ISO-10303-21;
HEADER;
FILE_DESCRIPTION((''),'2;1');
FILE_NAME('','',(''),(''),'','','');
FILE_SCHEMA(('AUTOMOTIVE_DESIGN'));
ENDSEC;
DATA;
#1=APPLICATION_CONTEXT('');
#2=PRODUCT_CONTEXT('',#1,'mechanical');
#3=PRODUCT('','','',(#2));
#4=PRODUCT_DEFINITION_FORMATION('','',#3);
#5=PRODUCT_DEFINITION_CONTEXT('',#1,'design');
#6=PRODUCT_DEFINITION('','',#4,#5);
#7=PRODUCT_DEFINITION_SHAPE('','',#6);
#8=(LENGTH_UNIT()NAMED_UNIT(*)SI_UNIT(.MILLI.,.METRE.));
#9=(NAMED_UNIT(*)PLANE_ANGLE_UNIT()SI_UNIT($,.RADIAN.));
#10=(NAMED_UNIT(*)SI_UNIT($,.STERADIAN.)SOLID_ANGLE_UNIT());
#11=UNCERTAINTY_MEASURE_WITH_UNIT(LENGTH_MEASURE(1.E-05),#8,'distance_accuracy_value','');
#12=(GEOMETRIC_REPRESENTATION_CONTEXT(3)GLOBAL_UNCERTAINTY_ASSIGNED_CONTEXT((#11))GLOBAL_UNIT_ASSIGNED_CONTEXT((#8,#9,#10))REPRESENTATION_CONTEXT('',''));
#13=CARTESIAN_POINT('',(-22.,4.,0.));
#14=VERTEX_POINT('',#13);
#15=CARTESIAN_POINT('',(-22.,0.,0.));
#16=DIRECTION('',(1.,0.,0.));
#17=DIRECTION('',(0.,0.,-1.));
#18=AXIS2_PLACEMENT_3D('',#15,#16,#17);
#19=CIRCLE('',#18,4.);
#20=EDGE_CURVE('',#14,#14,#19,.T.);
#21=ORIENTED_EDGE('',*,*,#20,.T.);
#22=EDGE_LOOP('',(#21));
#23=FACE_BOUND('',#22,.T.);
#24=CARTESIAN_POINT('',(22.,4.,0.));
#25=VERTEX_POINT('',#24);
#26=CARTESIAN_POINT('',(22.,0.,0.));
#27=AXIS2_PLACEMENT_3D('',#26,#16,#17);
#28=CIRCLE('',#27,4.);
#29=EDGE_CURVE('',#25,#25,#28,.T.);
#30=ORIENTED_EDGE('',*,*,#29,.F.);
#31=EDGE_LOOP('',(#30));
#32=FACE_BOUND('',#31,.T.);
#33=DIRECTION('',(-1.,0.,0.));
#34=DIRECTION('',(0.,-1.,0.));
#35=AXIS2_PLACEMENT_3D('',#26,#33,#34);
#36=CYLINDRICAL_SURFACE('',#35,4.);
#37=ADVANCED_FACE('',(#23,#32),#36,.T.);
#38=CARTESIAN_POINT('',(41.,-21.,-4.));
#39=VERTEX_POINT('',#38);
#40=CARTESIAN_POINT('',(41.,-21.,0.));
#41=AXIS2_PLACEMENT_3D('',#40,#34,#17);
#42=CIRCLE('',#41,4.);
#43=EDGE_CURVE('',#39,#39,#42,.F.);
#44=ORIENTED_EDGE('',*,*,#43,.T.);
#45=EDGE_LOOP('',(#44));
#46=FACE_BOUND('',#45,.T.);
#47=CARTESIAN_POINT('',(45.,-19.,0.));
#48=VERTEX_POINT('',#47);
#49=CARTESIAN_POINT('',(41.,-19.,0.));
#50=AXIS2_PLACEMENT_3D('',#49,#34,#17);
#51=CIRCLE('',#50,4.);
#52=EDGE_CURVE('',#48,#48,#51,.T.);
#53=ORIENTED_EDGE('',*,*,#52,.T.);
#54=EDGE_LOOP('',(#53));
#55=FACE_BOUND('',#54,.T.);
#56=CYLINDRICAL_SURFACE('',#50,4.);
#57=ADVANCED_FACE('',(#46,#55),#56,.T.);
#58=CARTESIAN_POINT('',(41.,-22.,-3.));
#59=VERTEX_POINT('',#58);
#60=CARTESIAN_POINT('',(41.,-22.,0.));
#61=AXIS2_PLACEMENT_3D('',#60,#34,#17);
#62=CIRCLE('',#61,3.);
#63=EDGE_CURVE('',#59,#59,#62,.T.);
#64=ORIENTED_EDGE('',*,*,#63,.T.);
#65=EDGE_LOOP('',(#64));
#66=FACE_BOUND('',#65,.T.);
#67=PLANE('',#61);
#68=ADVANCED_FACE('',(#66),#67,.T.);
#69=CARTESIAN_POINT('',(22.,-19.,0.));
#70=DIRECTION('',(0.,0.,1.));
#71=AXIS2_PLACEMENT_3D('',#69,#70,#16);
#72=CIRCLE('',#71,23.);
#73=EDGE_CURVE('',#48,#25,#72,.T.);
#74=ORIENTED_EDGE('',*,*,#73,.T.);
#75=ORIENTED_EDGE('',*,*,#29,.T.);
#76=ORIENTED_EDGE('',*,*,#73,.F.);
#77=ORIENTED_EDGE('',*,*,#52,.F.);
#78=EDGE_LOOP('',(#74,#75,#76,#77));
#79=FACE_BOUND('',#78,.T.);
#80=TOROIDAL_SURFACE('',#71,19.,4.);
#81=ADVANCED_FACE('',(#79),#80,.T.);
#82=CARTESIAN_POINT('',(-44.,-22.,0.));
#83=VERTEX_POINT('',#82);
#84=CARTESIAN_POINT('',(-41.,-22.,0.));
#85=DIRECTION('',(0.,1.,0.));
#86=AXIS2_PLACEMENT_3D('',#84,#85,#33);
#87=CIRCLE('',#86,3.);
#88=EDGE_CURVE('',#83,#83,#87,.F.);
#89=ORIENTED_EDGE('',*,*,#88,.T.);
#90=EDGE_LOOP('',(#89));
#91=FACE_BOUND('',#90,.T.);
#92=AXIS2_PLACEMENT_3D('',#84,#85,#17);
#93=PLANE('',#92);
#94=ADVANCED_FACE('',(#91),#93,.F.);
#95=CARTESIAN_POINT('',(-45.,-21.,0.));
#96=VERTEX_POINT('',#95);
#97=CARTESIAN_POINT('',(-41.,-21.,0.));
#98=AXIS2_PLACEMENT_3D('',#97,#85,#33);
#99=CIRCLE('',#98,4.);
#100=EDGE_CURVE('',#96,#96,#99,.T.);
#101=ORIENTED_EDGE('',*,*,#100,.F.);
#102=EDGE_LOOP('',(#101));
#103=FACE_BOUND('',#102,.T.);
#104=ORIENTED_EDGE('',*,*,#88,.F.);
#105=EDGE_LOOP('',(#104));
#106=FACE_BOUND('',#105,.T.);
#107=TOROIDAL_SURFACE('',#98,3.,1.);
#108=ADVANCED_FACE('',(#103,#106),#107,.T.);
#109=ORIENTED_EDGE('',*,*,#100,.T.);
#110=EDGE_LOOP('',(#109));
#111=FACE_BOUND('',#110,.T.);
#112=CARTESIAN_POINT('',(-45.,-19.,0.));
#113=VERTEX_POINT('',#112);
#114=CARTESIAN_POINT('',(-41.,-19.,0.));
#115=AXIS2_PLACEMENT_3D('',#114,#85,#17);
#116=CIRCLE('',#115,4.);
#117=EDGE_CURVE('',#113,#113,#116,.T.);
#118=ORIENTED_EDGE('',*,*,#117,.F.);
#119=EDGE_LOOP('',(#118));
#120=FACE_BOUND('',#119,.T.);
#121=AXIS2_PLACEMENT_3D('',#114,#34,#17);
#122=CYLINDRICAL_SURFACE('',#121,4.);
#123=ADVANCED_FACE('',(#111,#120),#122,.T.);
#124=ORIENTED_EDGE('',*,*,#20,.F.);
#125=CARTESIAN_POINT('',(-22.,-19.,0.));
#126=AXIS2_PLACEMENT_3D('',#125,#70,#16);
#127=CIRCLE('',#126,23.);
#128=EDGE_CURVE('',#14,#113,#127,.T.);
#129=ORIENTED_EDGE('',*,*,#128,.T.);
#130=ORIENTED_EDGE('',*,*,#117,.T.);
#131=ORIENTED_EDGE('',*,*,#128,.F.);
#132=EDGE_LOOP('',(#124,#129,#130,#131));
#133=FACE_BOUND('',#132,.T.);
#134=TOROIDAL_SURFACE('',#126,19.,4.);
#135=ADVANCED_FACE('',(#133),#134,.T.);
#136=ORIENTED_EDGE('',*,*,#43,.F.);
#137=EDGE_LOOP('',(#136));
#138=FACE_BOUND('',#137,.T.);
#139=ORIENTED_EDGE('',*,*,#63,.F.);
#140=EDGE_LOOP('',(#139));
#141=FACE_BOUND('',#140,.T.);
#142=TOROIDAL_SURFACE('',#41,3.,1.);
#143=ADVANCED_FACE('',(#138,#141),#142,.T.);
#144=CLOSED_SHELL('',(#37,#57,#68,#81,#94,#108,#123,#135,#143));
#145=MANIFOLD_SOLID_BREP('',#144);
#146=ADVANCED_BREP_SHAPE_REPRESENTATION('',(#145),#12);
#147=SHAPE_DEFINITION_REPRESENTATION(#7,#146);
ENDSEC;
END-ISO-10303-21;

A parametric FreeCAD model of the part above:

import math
import FreeCAD as App
import Part
import Sketcher
from FreeCAD import Vector


def edges_at(feature, points):
    """Names of the edges that pass closest to the given points."""
    edges = feature.Shape.Edges
    near = lambda p: min(range(len(edges)), key=lambda i: edges[i].distToShape(Part.Vertex(*p))[0])
    return sorted({f"Edge{near(p) + 1}" for p in points})

doc = App.newDocument("Part")
body = doc.addObject("PartDesign::Body", "Body")

# Sketch on XZ plane
sketch1 = doc.addObject("Sketcher::SketchObject", "Sketch")
body.addObject(sketch1)
sketch1.AttachmentSupport = (doc.XZ_Plane, [""])
sketch1.MapMode = "FlatFace"
sketch1.AttachmentOffset = App.Placement(Vector(0, 0, 22), App.Rotation())
sketch1.addGeometry(Part.Circle(Vector(41, 0, 0), Vector(0, 0, 1), 4), False)
sketch1.addConstraint([
    Sketcher.Constraint("PointOnObject", 0, 3, -1),
    Sketcher.Constraint("Diameter", 0, 8.0),
    Sketcher.Constraint("DistanceX", -1, 1, 0, 3, 41.0),
])

# Sketch on XY plane
sketch2 = doc.addObject("Sketcher::SketchObject", "Sketch001")
body.addObject(sketch2)
sketch2.AttachmentSupport = (doc.XY_Plane, [""])
sketch2.MapMode = "FlatFace"
sketch2.addGeometry([
    Part.LineSegment(Vector(41, -22, 0), Vector(41, -19, 0)),  # 0
    Part.ArcOfCircle(Part.Circle(Vector(22, -19, 0), Vector(0, 0, 1), 19), math.radians(0), math.radians(90)),  # 1
    Part.LineSegment(Vector(22, 0, 0), Vector(-22, 0, 0)),  # 2
    Part.ArcOfCircle(Part.Circle(Vector(-22, -19, 0), Vector(0, 0, 1), 19), math.radians(90), math.radians(180)),  # 3
    Part.LineSegment(Vector(-41, -19, 0), Vector(-41, -22, 0)),  # 4
], False)
sketch2.addConstraint([
    Sketcher.Constraint("Tangent", 0, 2, 1, 1),
    Sketcher.Constraint("Tangent", 1, 2, 2, 1),
    Sketcher.Constraint("Tangent", 2, 2, 3, 1),
    Sketcher.Constraint("Tangent", 3, 2, 4, 1),
    Sketcher.Constraint("Vertical", 0),
    Sketcher.Constraint("Horizontal", 2),
    Sketcher.Constraint("Vertical", 4),
    Sketcher.Constraint("Equal", 1, 3),
    Sketcher.Constraint("Symmetric", 1, 2, 2, 2, -1, 1),
    Sketcher.Constraint("Horizontal", 0, 1, 4, 2),
    Sketcher.Constraint("Radius", 1, 19.0),
    Sketcher.Constraint("DistanceX", 2, 2, 2, 1, 44.0),
    Sketcher.Constraint("DistanceY", 0, 1, 0, 2, 3.0),
])
doc.recompute()

additivepipe = doc.addObject("PartDesign::AdditivePipe", "AdditivePipe")
body.addObject(additivepipe)
additivepipe.Profile = sketch1
additivepipe.Spine = (sketch2, ["Edge1", "Edge2", "Edge3", "Edge4", "Edge5"])
doc.recompute()

fillet = doc.addObject("PartDesign::Fillet", "Fillet")
body.addObject(fillet)
fillet.Base = (additivepipe, edges_at(additivepipe, [(37, -22, 0), (-37, -22, 0)]))
fillet.Radius = 1

doc.recompute()
